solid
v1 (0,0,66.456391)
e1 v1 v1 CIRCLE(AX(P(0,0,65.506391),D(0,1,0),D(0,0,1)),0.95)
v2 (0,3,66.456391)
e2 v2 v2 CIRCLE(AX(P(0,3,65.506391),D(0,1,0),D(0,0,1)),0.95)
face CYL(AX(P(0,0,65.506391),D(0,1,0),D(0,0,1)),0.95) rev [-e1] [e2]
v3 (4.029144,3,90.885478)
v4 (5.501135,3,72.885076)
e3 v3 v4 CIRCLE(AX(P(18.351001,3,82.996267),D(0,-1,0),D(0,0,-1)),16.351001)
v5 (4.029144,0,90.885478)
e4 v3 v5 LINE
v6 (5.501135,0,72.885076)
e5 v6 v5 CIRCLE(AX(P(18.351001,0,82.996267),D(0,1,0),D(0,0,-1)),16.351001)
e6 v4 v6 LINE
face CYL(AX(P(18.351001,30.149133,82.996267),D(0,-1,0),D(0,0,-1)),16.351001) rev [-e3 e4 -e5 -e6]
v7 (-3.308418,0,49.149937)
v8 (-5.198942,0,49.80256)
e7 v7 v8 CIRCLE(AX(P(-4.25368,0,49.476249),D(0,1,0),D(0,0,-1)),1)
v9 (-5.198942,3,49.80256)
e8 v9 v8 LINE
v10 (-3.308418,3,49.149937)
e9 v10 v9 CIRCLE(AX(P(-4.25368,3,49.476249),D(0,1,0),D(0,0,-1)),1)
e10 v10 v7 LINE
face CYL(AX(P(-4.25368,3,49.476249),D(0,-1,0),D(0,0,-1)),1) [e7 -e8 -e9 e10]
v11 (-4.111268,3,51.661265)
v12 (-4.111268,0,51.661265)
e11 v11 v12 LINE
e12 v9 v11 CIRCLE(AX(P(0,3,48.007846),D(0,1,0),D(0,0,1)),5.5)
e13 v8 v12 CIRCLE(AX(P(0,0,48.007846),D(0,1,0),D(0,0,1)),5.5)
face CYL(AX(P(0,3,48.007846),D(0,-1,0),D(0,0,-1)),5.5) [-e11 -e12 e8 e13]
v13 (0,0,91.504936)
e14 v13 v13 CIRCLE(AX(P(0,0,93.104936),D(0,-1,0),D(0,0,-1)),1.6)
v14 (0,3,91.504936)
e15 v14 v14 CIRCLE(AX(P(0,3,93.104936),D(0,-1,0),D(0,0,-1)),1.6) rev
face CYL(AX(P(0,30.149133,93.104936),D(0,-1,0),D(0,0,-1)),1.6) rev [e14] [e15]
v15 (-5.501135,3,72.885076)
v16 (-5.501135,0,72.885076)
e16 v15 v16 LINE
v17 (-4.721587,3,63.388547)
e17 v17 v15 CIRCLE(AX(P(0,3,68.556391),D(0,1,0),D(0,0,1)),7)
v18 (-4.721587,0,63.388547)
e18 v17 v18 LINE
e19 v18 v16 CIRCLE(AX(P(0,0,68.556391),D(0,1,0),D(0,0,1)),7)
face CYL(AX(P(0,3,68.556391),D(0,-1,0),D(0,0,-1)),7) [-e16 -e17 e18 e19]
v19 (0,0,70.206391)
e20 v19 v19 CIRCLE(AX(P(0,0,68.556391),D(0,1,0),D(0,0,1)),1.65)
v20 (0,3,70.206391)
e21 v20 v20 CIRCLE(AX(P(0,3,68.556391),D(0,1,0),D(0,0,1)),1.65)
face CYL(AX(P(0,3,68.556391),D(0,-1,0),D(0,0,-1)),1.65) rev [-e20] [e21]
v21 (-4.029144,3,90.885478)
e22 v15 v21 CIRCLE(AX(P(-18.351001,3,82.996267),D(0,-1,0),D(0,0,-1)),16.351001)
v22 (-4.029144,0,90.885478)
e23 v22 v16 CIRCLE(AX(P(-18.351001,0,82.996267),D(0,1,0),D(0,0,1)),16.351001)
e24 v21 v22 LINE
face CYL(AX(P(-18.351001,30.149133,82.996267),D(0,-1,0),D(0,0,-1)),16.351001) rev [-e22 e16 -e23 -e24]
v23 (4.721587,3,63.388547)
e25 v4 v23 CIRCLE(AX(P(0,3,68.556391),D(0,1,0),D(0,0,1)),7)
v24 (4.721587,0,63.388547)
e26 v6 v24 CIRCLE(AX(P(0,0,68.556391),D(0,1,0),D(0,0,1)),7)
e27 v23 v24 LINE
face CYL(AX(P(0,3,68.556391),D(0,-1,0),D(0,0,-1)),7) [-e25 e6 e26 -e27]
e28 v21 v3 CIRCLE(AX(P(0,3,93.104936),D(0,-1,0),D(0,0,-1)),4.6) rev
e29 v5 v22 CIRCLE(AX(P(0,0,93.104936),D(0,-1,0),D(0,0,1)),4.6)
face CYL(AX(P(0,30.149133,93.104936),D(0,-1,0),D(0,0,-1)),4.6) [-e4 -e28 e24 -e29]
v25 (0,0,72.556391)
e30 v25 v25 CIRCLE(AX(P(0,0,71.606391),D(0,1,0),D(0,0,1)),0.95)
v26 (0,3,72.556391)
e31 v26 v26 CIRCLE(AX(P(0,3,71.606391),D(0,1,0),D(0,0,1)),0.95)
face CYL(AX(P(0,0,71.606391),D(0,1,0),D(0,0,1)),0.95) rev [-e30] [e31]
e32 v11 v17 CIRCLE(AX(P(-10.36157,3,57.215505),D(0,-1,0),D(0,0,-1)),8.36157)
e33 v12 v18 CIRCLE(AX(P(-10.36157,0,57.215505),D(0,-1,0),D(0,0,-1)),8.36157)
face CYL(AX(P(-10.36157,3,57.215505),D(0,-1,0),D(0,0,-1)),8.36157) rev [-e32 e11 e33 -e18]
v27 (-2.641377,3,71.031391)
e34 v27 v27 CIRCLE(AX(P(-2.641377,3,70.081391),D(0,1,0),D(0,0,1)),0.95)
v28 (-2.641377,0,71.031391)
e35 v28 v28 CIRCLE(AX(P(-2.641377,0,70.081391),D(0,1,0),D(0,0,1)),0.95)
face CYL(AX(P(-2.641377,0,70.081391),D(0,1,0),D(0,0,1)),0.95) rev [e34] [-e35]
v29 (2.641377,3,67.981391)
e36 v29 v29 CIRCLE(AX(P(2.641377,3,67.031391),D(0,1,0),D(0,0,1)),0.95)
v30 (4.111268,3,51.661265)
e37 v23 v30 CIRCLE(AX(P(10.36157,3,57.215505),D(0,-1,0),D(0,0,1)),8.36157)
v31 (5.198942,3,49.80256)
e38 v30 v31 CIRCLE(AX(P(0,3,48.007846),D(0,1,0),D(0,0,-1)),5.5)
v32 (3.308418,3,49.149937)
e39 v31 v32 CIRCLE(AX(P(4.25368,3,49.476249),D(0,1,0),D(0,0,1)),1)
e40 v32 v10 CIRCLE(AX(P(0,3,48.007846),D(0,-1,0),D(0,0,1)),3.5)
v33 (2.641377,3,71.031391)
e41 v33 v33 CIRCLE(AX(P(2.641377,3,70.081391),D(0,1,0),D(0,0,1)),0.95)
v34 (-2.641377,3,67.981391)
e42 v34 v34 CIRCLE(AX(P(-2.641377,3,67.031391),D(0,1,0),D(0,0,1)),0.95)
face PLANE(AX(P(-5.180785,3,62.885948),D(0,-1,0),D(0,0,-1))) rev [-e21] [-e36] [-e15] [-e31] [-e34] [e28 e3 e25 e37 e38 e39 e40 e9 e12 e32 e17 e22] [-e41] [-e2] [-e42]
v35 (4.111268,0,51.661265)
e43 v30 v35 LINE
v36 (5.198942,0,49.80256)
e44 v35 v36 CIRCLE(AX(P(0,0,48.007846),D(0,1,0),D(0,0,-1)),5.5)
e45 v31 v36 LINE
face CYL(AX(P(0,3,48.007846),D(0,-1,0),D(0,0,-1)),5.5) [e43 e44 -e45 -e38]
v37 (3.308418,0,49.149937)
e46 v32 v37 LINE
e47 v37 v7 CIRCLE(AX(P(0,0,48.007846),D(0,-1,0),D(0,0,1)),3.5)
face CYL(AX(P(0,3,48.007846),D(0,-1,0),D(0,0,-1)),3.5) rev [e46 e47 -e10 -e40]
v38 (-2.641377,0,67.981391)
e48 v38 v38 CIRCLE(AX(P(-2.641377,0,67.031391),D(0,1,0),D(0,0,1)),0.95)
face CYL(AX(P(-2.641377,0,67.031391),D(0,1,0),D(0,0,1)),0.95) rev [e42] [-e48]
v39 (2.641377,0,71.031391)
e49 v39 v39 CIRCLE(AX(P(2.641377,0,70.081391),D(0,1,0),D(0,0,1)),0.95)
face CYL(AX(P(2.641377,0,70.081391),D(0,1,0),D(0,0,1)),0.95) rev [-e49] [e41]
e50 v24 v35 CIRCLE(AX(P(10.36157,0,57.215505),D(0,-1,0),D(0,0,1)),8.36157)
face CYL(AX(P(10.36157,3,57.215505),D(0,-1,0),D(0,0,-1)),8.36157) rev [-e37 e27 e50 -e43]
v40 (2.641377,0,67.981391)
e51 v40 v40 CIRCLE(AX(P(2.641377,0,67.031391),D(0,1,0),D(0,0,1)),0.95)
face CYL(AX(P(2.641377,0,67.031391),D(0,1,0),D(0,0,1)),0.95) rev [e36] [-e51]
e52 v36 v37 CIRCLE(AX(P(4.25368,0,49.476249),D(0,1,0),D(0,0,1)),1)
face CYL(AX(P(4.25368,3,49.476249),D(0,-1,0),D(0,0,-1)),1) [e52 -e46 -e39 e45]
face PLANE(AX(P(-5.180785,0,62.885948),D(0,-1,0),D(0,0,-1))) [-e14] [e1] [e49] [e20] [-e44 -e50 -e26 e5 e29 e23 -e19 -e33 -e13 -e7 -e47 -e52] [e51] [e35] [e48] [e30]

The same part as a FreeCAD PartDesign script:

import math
import FreeCAD as App
import Part
import Sketcher

V = App.Vector
Q = App.Units.Quantity

doc = App.newDocument("Part")
body = doc.addObject("PartDesign::Body", "Body")

sketch1 = body.newObject("Sketcher::SketchObject", "Sketch")
sketch1.AttachmentSupport = (doc.getObject("XZ_Plane"), [""])
sketch1.MapMode = "FlatFace"
sketch1.addGeometry([
    Part.ArcOfCircle(Part.Circle(V(0, 68.6, 0), V(0, 0, 1), 7), math.radians(-48), math.radians(228)),
    Part.ArcOfCircle(Part.Circle(V(10.4, 57.2, 0), V(0, 0, 1), 8.4), math.radians(132), math.radians(222)),
    Part.ArcOfCircle(Part.Circle(V(0, 48, 0), V(0, 0, 1), 5.5), math.radians(19), math.radians(42)),
    Part.ArcOfCircle(Part.Circle(V(4.3, 49.5, 0), V(0, 0, 1), 1), math.radians(-161), math.radians(19)),
    Part.ArcOfCircle(Part.Circle(V(0, 48, 0), V(0, 0, 1), 3.5), math.radians(19), math.radians(161)),
    Part.ArcOfCircle(Part.Circle(V(-4.3, 49.5, 0), V(0, 0, 1), 1), math.radians(161), math.radians(341)),
    Part.ArcOfCircle(Part.Circle(V(0, 48, 0), V(0, 0, 1), 5.5), math.radians(138), math.radians(161)),
    Part.ArcOfCircle(Part.Circle(V(-10.4, 57.2, 0), V(0, 0, 1), 8.4), math.radians(-42), math.radians(48)),
    Part.Circle(V(0, 68.6, 0), V(0, 0, 1), 1.6),
], False)
sketch1.addConstraint([
    Sketcher.Constraint("Tangent", 0, 1, 1, 1),
    Sketcher.Constraint("Tangent", 1, 2, 2, 2),
    Sketcher.Constraint("Tangent", 2, 1, 3, 2),
    Sketcher.Constraint("Tangent", 3, 1, 4, 1),
    Sketcher.Constraint("Tangent", 4, 2, 5, 2),
    Sketcher.Constraint("Tangent", 5, 1, 6, 2),
    Sketcher.Constraint("Tangent", 6, 1, 7, 1),
    Sketcher.Constraint("Tangent", 7, 2, 0, 2),
    Sketcher.Constraint("Coincident", 4, 3, 2, 3),
    Sketcher.Constraint("Coincident", 6, 3, 2, 3),
    Sketcher.Constraint("Coincident", 8, 3, 0, 3),
    Sketcher.Constraint("Equal", 3, 5),
    Sketcher.Constraint("Equal", 1, 7),
    Sketcher.Constraint("Symmetric", 3, 3, 5, 3, -2),
    Sketcher.Constraint("PointOnObject", 0, 3, -2),
    Sketcher.Constraint("Radius", 0, Q("7 mm")),
    Sketcher.Constraint("Radius", 3, Q("1 mm")),
    Sketcher.Constraint("Diameter", 8, Q("3.3 mm")),
    Sketcher.Constraint("Radius", 2, Q("5.5 mm")),
    Sketcher.Constraint("Radius", 1, Q("8.36157 mm")),
    Sketcher.Constraint("DistanceY", 4, 3, 0, 1, Q("15.380701 mm")),
    Sketcher.Constraint("DistanceY", -1, 1, 0, 3, Q("68.556391 mm")),
    Sketcher.Constraint("DistanceX", -1, 1, 3, 3, Q("4.25368 mm")),
])
pad1 = body.newObject("PartDesign::Pad", "Pad")
pad1.Profile = sketch1
pad1.Length = 3
pad1.Reversed = True

sketch2 = body.newObject("Sketcher::SketchObject", "Sketch001")
sketch2.AttachmentSupport = (doc.getObject("XZ_Plane"), [""])
sketch2.MapMode = "FlatFace"
sketch2.addGeometry([
    Part.ArcOfCircle(Part.Circle(V(0, 93.1, 0), V(0, 0, 1), 4.6), math.radians(-29), math.radians(209)),
    Part.ArcOfCircle(Part.Circle(V(-18.4, 83, 0), V(0, 0, 1), 16.4), math.radians(-38), math.radians(29)),
    Part.ArcOfCircle(Part.Circle(V(0, 68.6, 0), V(0, 0, 1), 7), math.radians(38), math.radians(142)),
    Part.ArcOfCircle(Part.Circle(V(18.4, 83, 0), V(0, 0, 1), 16.4), math.radians(151), math.radians(218)),
    Part.Circle(V(0, 93.1, 0), V(0, 0, 1), 1.6),
], False)
sketch2.addConstraint([
    Sketcher.Constraint("Tangent", 0, 2, 1, 2),
    Sketcher.Constraint("Tangent", 1, 1, 2, 2),
    Sketcher.Constraint("Tangent", 2, 1, 3, 2),
    Sketcher.Constraint("Tangent", 3, 1, 0, 1),
    Sketcher.Constraint("Coincident", 4, 3, 0, 3),
    Sketcher.Constraint("Equal", 1, 3),
    Sketcher.Constraint("Symmetric", 1, 3, 3, 3, -2),
    Sketcher.Constraint("Radius", 2, Q("7 mm")),
    Sketcher.Constraint("Diameter", 4, Q("3.2 mm")),
    Sketcher.Constraint("Radius", 0, Q("4.6 mm")),
    Sketcher.Constraint("Radius", 1, Q("16.351001 mm")),
    Sketcher.Constraint("DistanceX", 1, 3, -1, 1, Q("18.351001 mm")),
    Sketcher.Constraint("DistanceY", -1, 1, 2, 3, Q("68.556391 mm")),
])
pad2 = body.newObject("PartDesign::Pad", "Pad001")
pad2.Profile = sketch2
pad2.Length = 3
pad2.Reversed = True

sketch3 = body.newObject("Sketcher::SketchObject", "Sketch002")
sketch3.AttachmentSupport = (doc.getObject("XZ_Plane"), [""])
sketch3.MapMode = "FlatFace"
sketch3.AttachmentOffset = App.Placement(V(0, 0, -3), App.Rotation())
sketch3.addGeometry([
    Part.Circle(V(0, 65.5, 0), V(0, 0, 1), 0.9),
    Part.Circle(V(2.6, 67, 0), V(0, 0, 1), 0.9),
    Part.Circle(V(2.6, 70.1, 0), V(0, 0, 1), 0.9),
    Part.Circle(V(0, 71.6, 0), V(0, 0, 1), 0.9),
    Part.Circle(V(-2.6, 70.1, 0), V(0, 0, 1), 0.9),
    Part.Circle(V(-2.6, 67, 0), V(0, 0, 1), 0.9),
], False)
sketch3.addConstraint([
    Sketcher.Constraint("Equal", 0, 1),
    Sketcher.Constraint("Equal", 1, 2),
    Sketcher.Constraint("Equal", 2, 3),
    Sketcher.Constraint("Equal", 3, 4),
    Sketcher.Constraint("Equal", 4, 5),
    Sketcher.Constraint("Symmetric", 2, 3, 4, 3, -2),
    Sketcher.Constraint("Symmetric", 1, 3, 5, 3, -2),
    Sketcher.Constraint("PointOnObject", 0, 3, -2),
    Sketcher.Constraint("PointOnObject", 3, 3, -2),
    Sketcher.Constraint("Vertical", 1, 3, 2, 3),
    Sketcher.Constraint("Diameter", 0, Q("1.9 mm")),
    Sketcher.Constraint("DistanceY", 0, 3, 3, 3, Q("6.1 mm")),
    Sketcher.Constraint("DistanceY", 1, 3, 2, 3, Q("3.05 mm")),
    Sketcher.Constraint("DistanceY", 0, 3, 1, 3, Q("1.525 mm")),
    Sketcher.Constraint("DistanceY", -1, 1, 0, 3, Q("65.506391 mm")),
    Sketcher.Constraint("DistanceX", -1, 1, 1, 3, Q("2.641377 mm")),
])
pocket1 = body.newObject("PartDesign::Pocket", "Pocket")
pocket1.Profile = sketch3
pocket1.Type = "ThroughAll"
pocket1.Reversed = True

doc.recompute()
